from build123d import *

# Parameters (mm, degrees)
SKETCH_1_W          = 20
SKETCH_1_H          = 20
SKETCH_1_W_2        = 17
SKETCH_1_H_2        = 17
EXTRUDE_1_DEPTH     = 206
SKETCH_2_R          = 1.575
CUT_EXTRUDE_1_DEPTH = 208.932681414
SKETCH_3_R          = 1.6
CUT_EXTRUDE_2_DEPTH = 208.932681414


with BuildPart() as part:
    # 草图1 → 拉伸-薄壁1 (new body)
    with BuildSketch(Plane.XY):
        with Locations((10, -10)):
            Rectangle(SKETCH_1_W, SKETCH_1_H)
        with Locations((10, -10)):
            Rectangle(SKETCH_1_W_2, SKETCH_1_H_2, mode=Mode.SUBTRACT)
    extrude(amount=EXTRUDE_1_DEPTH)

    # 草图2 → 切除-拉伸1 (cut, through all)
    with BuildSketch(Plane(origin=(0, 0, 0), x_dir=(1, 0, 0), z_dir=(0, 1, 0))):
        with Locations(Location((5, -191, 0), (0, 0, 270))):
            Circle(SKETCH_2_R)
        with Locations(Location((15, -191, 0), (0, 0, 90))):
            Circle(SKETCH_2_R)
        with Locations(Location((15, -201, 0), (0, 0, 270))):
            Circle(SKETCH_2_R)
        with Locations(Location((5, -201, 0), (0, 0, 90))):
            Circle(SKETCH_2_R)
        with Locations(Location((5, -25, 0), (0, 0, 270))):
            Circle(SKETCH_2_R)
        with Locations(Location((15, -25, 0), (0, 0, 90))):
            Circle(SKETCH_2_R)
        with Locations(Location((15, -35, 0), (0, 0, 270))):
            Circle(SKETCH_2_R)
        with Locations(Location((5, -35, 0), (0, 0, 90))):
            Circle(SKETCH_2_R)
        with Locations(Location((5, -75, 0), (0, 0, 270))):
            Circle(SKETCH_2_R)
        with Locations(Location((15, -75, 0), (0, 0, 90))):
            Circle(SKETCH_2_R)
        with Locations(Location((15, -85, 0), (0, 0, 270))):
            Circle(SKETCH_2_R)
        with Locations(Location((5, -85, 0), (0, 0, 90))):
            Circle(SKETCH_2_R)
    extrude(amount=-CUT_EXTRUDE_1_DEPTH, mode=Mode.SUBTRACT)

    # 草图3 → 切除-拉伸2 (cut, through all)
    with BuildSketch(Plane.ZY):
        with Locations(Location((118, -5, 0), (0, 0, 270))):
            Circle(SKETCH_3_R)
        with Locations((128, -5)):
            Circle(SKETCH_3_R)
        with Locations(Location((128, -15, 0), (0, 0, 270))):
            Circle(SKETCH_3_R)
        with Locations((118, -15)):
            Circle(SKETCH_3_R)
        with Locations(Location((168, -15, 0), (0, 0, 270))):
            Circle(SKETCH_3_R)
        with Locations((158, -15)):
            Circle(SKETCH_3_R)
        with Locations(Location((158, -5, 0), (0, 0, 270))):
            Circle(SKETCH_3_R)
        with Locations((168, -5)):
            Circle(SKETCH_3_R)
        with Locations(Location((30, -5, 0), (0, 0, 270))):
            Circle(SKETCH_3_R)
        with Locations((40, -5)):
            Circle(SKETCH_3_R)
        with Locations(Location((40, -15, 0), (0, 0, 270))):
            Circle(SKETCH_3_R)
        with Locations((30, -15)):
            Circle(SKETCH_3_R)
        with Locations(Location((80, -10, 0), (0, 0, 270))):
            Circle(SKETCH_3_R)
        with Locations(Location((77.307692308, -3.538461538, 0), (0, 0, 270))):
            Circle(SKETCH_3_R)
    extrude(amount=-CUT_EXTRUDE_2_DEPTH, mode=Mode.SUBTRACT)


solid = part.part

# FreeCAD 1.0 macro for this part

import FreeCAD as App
import Part
import Sketcher
Q = App.Units.Quantity


def add_polygon(sketch, points):
    """Adds a closed chain of lines whose ends are joined by coincident constraints."""
    first, n = sketch.GeometryCount, len(points)
    for a, b in zip(points, points[1:] + points[:1]):
        sketch.addGeometry(Part.LineSegment(App.Vector(*a, 0), App.Vector(*b, 0)), False)
    for i in range(n):
        sketch.addConstraint(Sketcher.Constraint("Coincident", first + i, 2, first + (i + 1) % n, 1))

doc = App.newDocument("Part")
body = doc.addObject("PartDesign::Body", "Body")

# Sketch on XY plane
sketch1 = body.newObject("Sketcher::SketchObject", "Sketch")
sketch1.AttachmentSupport = (doc.getObject("XY_Plane"), [""])
sketch1.MapMode = "FlatFace"
add_polygon(sketch1, [(0, 0), (0, -20), (20, -20), (20, 0)])  # lines 0-3
add_polygon(sketch1, [(18.5, -18.5), (1.5, -18.5), (1.5, -1.5), (18.5, -1.5)])  # lines 4-7
sketch1.addConstraint([
    Sketcher.Constraint("Vertical", 0),
    Sketcher.Constraint("Horizontal", 1),
    Sketcher.Constraint("Vertical", 2),
    Sketcher.Constraint("Horizontal", 3),
    Sketcher.Constraint("Horizontal", 4),
    Sketcher.Constraint("Vertical", 5),
    Sketcher.Constraint("Horizontal", 6),
    Sketcher.Constraint("Vertical", 7),
    Sketcher.Constraint("Coincident", 3, 2, -1, 1),
    Sketcher.Constraint("Equal", 3, 0),
    Sketcher.Constraint("Equal", 6, 5),
    Sketcher.Constraint("DistanceX", 1, 1, 1, 2, Q("20 mm")),
    Sketcher.Constraint("DistanceX", 4, 2, 4, 1, Q("17 mm")),
    Sketcher.Constraint("DistanceX", -1, 1, 4, 2, Q("1.5 mm")),
    Sketcher.Constraint("DistanceY", 4, 2, -1, 1, Q("18.5 mm")),
])
pad1 = body.newObject("PartDesign::Pad", "Pad")
pad1.Profile = sketch1
pad1.Length = 206

# Sketch on XZ plane
sketch2 = body.newObject("Sketcher::SketchObject", "Sketch001")
sketch2.AttachmentSupport = (doc.getObject("XZ_Plane"), [""])
sketch2.MapMode = "FlatFace"
sketch2.addGeometry([
    Part.Circle(App.Vector(5, 191, 0), App.Vector(0, 0, 1), 1.575),  # 0
    Part.Circle(App.Vector(15, 191, 0), App.Vector(0, 0, 1), 1.575),  # 1
    Part.Circle(App.Vector(15, 201, 0), App.Vector(0, 0, 1), 1.575),  # 2
    Part.Circle(App.Vector(5, 201, 0), App.Vector(0, 0, 1), 1.575),  # 3
    Part.Circle(App.Vector(5, 25, 0), App.Vector(0, 0, 1), 1.575),  # 4
    Part.Circle(App.Vector(15, 25, 0), App.Vector(0, 0, 1), 1.575),  # 5
    Part.Circle(App.Vector(15, 35, 0), App.Vector(0, 0, 1), 1.575),  # 6
    Part.Circle(App.Vector(5, 35, 0), App.Vector(0, 0, 1), 1.575),  # 7
    Part.Circle(App.Vector(5, 75, 0), App.Vector(0, 0, 1), 1.575),  # 8
    Part.Circle(App.Vector(15, 75, 0), App.Vector(0, 0, 1), 1.575),  # 9
    Part.Circle(App.Vector(15, 85, 0), App.Vector(0, 0, 1), 1.575),  # 10
    Part.Circle(App.Vector(5, 85, 0), App.Vector(0, 0, 1), 1.575),  # 11
], False)
sketch2.addConstraint([
    Sketcher.Constraint("Equal", 0, 1),
    Sketcher.Constraint("Equal", 1, 2),
    Sketcher.Constraint("Equal", 2, 3),
    Sketcher.Constraint("Equal", 3, 4),
    Sketcher.Constraint("Equal", 4, 5),
    Sketcher.Constraint("Equal", 5, 6),
    Sketcher.Constraint("Equal", 6, 7),
    Sketcher.Constraint("Equal", 7, 8),
    Sketcher.Constraint("Equal", 8, 9),
    Sketcher.Constraint("Equal", 9, 10),
    Sketcher.Constraint("Equal", 10, 11),
    Sketcher.Constraint("Horizontal", 0, 3, 1, 3),
    Sketcher.Constraint("Horizontal", 2, 3, 3, 3),
    Sketcher.Constraint("Horizontal", 4, 3, 5, 3),
    Sketcher.Constraint("Horizontal", 6, 3, 7, 3),
    Sketcher.Constraint("Horizontal", 8, 3, 9, 3),
    Sketcher.Constraint("Horizontal", 10, 3, 11, 3),
    Sketcher.Constraint("Vertical", 1, 3, 2, 3),
    Sketcher.Constraint("Vertical", 0, 3, 3, 3),
    Sketcher.Constraint("Vertical", 3, 3, 4, 3),
    Sketcher.Constraint("Vertical", 2, 3, 5, 3),
    Sketcher.Constraint("Vertical", 5, 3, 6, 3),
    Sketcher.Constraint("Vertical", 4, 3, 7, 3),
    Sketcher.Constraint("Vertical", 7, 3, 8, 3),
    Sketcher.Constraint("Vertical", 6, 3, 9, 3),
    Sketcher.Constraint("Vertical", 9, 3, 10, 3),
    Sketcher.Constraint("Vertical", 8, 3, 11, 3),
    Sketcher.Constraint("Diameter", 0, Q("3.15 mm")),
    Sketcher.Constraint("DistanceX", -1, 1, 0, 3, Q("5 mm")),
    Sketcher.Constraint("DistanceY", -1, 1, 0, 3, Q("191 mm")),
    Sketcher.Constraint("DistanceX", -1, 1, 1, 3, Q("15 mm")),
    Sketcher.Constraint("DistanceY", -1, 1, 2, 3, Q("201 mm")),
    Sketcher.Constraint("DistanceY", -1, 1, 4, 3, Q("25 mm")),
    Sketcher.Constraint("DistanceY", -1, 1, 6, 3, Q("35 mm")),
    Sketcher.Constraint("DistanceY", -1, 1, 8, 3, Q("75 mm")),
    Sketcher.Constraint("DistanceY", -1, 1, 10, 3, Q("85 mm")),
])
pocket1 = body.newObject("PartDesign::Pocket", "Pocket")
pocket1.Profile = sketch2
pocket1.Type = "ThroughAll"
pocket1.Reversed = True

# Sketch on YZ plane
sketch3 = body.newObject("Sketcher::SketchObject", "Sketch002")
sketch3.AttachmentSupport = (doc.getObject("YZ_Plane"), [""])
sketch3.MapMode = "FlatFace"
sketch3.addGeometry([
    Part.Circle(App.Vector(-5, 118, 0), App.Vector(0, 0, 1), 1.6),  # 0
    Part.Circle(App.Vector(-5, 128, 0), App.Vector(0, 0, 1), 1.6),  # 1
    Part.Circle(App.Vector(-15, 128, 0), App.Vector(0, 0, 1), 1.6),  # 2
    Part.Circle(App.Vector(-15, 118, 0), App.Vector(0, 0, 1), 1.6),  # 3
    Part.Circle(App.Vector(-15, 168, 0), App.Vector(0, 0, 1), 1.6),  # 4
    Part.Circle(App.Vector(-15, 158, 0), App.Vector(0, 0, 1), 1.6),  # 5
    Part.Circle(App.Vector(-5, 158, 0), App.Vector(0, 0, 1), 1.6),  # 6
    Part.Circle(App.Vector(-5, 168, 0), App.Vector(0, 0, 1), 1.6),  # 7
    Part.Circle(App.Vector(-5, 30, 0), App.Vector(0, 0, 1), 1.6),  # 8
    Part.Circle(App.Vector(-5, 40, 0), App.Vector(0, 0, 1), 1.6),  # 9
    Part.Circle(App.Vector(-15, 40, 0), App.Vector(0, 0, 1), 1.6),  # 10
    Part.Circle(App.Vector(-15, 30, 0), App.Vector(0, 0, 1), 1.6),  # 11
    Part.Circle(App.Vector(-10, 80, 0), App.Vector(0, 0, 1), 1.6),  # 12
    Part.Circle(App.Vector(-3.538462, 77.307692, 0), App.Vector(0, 0, 1), 1.6),  # 13
], False)
sketch3.addConstraint([
    Sketcher.Constraint("Equal", 0, 1),
    Sketcher.Constraint("Equal", 1, 2),
    Sketcher.Constraint("Equal", 2, 3),
    Sketcher.Constraint("Equal", 3, 4),
    Sketcher.Constraint("Equal", 4, 5),
    Sketcher.Constraint("Equal", 5, 6),
    Sketcher.Constraint("Equal", 6, 7),
    Sketcher.Constraint("Equal", 7, 8),
    Sketcher.Constraint("Equal", 8, 9),
    Sketcher.Constraint("Equal", 9, 10),
    Sketcher.Constraint("Equal", 10, 11),
    Sketcher.Constraint("Equal", 11, 12),
    Sketcher.Constraint("Equal", 12, 13),
    Sketcher.Constraint("Horizontal", 1, 3, 2, 3),
    Sketcher.Constraint("Horizontal", 0, 3, 3, 3),
    Sketcher.Constraint("Horizontal", 5, 3, 6, 3),
    Sketcher.Constraint("Horizontal", 4, 3, 7, 3),
    Sketcher.Constraint("Horizontal", 9, 3, 10, 3),
    Sketcher.Constraint("Horizontal", 8, 3, 11, 3),
    Sketcher.Constraint("Vertical", 0, 3, 1, 3),
    Sketcher.Constraint("Vertical", 2, 3, 3, 3),
    Sketcher.Constraint("Vertical", 3, 3, 4, 3),
    Sketcher.Constraint("Vertical", 4, 3, 5, 3),
    Sketcher.Constraint("Vertical", 1, 3, 6, 3),
    Sketcher.Constraint("Vertical", 6, 3, 7, 3),
    Sketcher.Constraint("Vertical", 7, 3, 8, 3),
    Sketcher.Constraint("Vertical", 8, 3, 9, 3),
    Sketcher.Constraint("Vertical", 5, 3, 10, 3),
    Sketcher.Constraint("Vertical", 10, 3, 11, 3),
    Sketcher.Constraint("Diameter", 0, Q("3.2 mm")),
    Sketcher.Constraint("DistanceX", 0, 3, -1, 1, Q("5 mm")),
    Sketcher.Constraint("DistanceY", -1, 1, 0, 3, Q("118 mm")),
    Sketcher.Constraint("DistanceY", -1, 1, 1, 3, Q("128 mm")),
    Sketcher.Constraint("DistanceX", 2, 3, -1, 1, Q("15 mm")),
    Sketcher.Constraint("DistanceY", -1, 1, 4, 3, Q("168 mm")),
    Sketcher.Constraint("DistanceY", -1, 1, 5, 3, Q("158 mm")),
    Sketcher.Constraint("DistanceY", -1, 1, 8, 3, Q("30 mm")),
    Sketcher.Constraint("DistanceY", -1, 1, 9, 3, Q("40 mm")),
    Sketcher.Constraint("DistanceX", 12, 3, -1, 1, Q("10 mm")),
    Sketcher.Constraint("DistanceY", -1, 1, 12, 3, Q("80 mm")),
    Sketcher.Constraint("DistanceX", 13, 3, -1, 1, Q("3.538462 mm")),
    Sketcher.Constraint("DistanceY", -1, 1, 13, 3, Q("77.307692 mm")),
])
pocket2 = body.newObject("PartDesign::Pocket", "Pocket001")
pocket2.Profile = sketch3
pocket2.Type = "ThroughAll"
pocket2.Reversed = True

doc.recompute()
